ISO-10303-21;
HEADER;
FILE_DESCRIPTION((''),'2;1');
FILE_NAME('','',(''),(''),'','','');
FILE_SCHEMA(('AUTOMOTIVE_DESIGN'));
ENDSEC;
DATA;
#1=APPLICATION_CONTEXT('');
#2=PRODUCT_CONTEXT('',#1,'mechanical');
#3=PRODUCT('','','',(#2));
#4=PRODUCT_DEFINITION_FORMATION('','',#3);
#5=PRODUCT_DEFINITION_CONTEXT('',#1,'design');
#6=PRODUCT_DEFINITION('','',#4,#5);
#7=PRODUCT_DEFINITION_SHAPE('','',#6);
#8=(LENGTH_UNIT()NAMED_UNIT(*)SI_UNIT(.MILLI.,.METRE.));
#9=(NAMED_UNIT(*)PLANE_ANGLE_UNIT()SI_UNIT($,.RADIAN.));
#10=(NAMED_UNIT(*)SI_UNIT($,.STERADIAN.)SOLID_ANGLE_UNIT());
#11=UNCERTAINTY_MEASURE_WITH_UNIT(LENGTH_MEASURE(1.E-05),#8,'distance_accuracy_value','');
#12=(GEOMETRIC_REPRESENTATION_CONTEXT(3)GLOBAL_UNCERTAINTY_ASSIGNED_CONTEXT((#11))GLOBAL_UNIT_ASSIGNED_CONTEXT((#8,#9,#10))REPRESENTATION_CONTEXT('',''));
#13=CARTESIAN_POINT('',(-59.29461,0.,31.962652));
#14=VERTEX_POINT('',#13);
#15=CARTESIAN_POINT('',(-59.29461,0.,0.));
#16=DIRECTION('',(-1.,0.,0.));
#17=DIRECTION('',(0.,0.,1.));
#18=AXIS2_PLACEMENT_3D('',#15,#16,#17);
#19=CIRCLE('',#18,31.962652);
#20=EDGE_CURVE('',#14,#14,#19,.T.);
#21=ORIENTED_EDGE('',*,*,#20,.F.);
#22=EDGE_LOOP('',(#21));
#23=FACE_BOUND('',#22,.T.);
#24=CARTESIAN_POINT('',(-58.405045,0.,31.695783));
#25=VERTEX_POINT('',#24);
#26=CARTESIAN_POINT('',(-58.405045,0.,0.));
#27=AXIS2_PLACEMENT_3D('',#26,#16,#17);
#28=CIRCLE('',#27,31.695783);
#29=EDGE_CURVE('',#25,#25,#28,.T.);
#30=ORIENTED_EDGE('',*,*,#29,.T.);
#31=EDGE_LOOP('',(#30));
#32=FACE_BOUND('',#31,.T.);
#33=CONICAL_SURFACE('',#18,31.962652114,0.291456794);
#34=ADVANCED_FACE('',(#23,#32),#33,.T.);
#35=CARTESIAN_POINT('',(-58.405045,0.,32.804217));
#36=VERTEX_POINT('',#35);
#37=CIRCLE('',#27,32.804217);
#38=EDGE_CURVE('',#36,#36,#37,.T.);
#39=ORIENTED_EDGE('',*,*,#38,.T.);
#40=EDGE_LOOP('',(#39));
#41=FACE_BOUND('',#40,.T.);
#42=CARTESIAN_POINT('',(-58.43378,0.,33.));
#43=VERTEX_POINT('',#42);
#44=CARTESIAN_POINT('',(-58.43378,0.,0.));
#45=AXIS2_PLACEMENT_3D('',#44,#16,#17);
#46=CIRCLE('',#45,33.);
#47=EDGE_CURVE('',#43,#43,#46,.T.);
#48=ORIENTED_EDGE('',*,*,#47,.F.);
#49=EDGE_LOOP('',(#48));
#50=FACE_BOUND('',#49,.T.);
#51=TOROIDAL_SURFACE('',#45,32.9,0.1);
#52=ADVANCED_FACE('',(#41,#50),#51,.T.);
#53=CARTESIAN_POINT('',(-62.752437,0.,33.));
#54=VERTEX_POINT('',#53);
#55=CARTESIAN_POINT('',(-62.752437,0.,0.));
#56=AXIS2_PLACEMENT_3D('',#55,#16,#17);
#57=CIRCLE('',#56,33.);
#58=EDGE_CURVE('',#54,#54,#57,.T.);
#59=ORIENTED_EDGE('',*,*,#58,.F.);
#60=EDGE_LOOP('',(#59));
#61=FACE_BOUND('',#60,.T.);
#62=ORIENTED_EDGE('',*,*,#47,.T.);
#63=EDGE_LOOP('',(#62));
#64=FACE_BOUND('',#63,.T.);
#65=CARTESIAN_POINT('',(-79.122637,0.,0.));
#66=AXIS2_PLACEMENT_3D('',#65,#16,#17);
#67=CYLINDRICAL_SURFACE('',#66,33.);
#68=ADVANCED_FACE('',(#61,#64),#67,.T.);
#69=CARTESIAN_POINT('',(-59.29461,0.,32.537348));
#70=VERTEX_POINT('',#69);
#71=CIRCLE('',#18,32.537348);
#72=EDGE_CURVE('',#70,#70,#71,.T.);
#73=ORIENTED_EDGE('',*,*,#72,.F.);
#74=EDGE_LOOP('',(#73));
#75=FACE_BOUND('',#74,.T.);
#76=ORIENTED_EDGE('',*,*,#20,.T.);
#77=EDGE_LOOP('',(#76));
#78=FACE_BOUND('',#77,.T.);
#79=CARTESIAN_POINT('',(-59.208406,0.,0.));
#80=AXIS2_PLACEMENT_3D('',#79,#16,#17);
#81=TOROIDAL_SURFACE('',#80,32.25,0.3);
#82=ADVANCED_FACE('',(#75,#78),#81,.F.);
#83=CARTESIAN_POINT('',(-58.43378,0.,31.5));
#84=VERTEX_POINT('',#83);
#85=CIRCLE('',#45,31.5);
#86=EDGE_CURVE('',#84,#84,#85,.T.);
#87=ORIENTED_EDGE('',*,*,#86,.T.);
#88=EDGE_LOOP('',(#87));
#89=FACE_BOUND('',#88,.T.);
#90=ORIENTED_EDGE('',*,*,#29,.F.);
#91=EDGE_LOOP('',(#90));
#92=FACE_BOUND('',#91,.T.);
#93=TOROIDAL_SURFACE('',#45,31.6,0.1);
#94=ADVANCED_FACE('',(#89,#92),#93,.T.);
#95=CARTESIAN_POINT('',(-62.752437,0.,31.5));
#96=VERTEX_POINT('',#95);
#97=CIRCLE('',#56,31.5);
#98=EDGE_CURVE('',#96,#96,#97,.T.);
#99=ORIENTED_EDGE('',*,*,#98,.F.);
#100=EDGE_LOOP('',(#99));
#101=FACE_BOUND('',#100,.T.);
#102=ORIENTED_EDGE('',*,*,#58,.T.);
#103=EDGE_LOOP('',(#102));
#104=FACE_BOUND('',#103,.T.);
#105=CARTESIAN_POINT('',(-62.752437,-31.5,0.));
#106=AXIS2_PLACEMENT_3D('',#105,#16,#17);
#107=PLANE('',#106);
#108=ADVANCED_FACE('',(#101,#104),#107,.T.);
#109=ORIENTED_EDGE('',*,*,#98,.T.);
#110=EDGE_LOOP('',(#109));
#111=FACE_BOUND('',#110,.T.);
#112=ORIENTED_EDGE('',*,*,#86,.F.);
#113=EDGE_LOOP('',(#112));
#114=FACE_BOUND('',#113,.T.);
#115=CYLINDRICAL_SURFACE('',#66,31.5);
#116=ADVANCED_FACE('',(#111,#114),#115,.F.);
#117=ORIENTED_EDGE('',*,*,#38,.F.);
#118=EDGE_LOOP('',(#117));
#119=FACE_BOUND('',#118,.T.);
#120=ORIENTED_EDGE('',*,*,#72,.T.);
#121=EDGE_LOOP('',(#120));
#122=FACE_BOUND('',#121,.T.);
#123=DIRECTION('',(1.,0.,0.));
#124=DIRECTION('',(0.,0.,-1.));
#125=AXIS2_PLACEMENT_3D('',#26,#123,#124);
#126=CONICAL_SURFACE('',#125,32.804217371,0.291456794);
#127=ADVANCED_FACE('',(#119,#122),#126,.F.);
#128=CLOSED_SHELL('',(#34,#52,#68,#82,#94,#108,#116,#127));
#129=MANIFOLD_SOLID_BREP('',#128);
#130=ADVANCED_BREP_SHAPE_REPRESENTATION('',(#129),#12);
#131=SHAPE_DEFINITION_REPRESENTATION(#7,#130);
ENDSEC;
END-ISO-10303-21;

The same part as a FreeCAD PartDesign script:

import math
import FreeCAD as App
import Part
import Sketcher

doc = App.newDocument("Part")
body = doc.addObject("PartDesign::Body", "Body")

# Sketch on XY plane
sketch1 = body.newObject("Sketcher::SketchObject", "Sketch")
sketch1.AttachmentSupport = (doc.getObject("XY_Plane"), [""])
sketch1.MapMode = "FlatFace"
sketch1.addGeometry(Part.LineSegment(App.Vector(-62.752437, -33, 0), App.Vector(-58.43378, -33, 0)), False)
sketch1.addGeometry(Part.ArcOfCircle(Part.Circle(App.Vector(-58.43378, -32.9, 0), App.Vector(0, 0, 1), 0.1), math.radians(-90), math.radians(73.300756)), False)
sketch1.addGeometry(Part.LineSegment(App.Vector(-58.405045, -32.804217, 0), App.Vector(-59.29461, -32.537348, 0)), False)
sketch1.addGeometry(Part.ArcOfCircle(Part.Circle(App.Vector(-59.208406, -32.25, 0), App.Vector(0, 0, 1), 0.3), math.radians(106.699244), math.radians(253.300756)), False)
sketch1.addGeometry(Part.LineSegment(App.Vector(-59.29461, -31.962652, 0), App.Vector(-58.405045, -31.695783, 0)), False)
sketch1.addGeometry(Part.ArcOfCircle(Part.Circle(App.Vector(-58.43378, -31.6, 0), App.Vector(0, 0, 1), 0.1), math.radians(-73.300756), math.radians(90)), False)
sketch1.addGeometry(Part.LineSegment(App.Vector(-58.43378, -31.5, 0), App.Vector(-62.752437, -31.5, 0)), False)
sketch1.addGeometry(Part.LineSegment(App.Vector(-62.752437, -31.5, 0), App.Vector(-62.752437, -33, 0)), False)
sketch1.addConstraint(Sketcher.Constraint("Tangent", 0, 2, 1, 1))
sketch1.addConstraint(Sketcher.Constraint("Tangent", 1, 2, 2, 1))
sketch1.addConstraint(Sketcher.Constraint("Tangent", 2, 2, 3, 2))
sketch1.addConstraint(Sketcher.Constraint("Tangent", 3, 1, 4, 1))
sketch1.addConstraint(Sketcher.Constraint("Tangent", 4, 2, 5, 1))
sketch1.addConstraint(Sketcher.Constraint("Tangent", 5, 2, 6, 1))
sketch1.addConstraint(Sketcher.Constraint("Coincident", 6, 2, 7, 1))
sketch1.addConstraint(Sketcher.Constraint("Coincident", 7, 2, 0, 1))
sketch1.addConstraint(Sketcher.Constraint("Horizontal", 0))
sketch1.addConstraint(Sketcher.Constraint("Horizontal", 6))
sketch1.addConstraint(Sketcher.Constraint("Vertical", 7))
sketch1.addConstraint(Sketcher.Constraint("Equal", 1, 5))
sketch1.addConstraint(Sketcher.Constraint("Vertical", 1, 3, 5, 3))
sketch1.addConstraint(Sketcher.Constraint("Vertical", 2, 2, 3, 1))
sketch1.addConstraint(Sketcher.Constraint("Radius", 1, 0.1))
sketch1.addConstraint(Sketcher.Constraint("Radius", 3, 0.3))
sketch1.addConstraint(Sketcher.Constraint("DistanceY", 7, 2, 7, 1, 1.5))
sketch1.addConstraint(Sketcher.Constraint("DistanceY", 0, 2, -1, 1, 33.0))
sketch1.addConstraint(Sketcher.Constraint("DistanceX", 0, 1, 0, 2, 4.318656))
sketch1.addConstraint(Sketcher.Constraint("DistanceX", 1, 3, -1, 1, 58.43378))
sketch1.addConstraint(Sketcher.Constraint("DistanceX", 2, 2, -1, 1, 59.29461))
revolution = body.newObject("PartDesign::Revolution", "Revolution")
revolution.Profile = sketch1
revolution.ReferenceAxis = (sketch1, ["H_Axis"])
revolution.Angle = 360

doc.recompute()
